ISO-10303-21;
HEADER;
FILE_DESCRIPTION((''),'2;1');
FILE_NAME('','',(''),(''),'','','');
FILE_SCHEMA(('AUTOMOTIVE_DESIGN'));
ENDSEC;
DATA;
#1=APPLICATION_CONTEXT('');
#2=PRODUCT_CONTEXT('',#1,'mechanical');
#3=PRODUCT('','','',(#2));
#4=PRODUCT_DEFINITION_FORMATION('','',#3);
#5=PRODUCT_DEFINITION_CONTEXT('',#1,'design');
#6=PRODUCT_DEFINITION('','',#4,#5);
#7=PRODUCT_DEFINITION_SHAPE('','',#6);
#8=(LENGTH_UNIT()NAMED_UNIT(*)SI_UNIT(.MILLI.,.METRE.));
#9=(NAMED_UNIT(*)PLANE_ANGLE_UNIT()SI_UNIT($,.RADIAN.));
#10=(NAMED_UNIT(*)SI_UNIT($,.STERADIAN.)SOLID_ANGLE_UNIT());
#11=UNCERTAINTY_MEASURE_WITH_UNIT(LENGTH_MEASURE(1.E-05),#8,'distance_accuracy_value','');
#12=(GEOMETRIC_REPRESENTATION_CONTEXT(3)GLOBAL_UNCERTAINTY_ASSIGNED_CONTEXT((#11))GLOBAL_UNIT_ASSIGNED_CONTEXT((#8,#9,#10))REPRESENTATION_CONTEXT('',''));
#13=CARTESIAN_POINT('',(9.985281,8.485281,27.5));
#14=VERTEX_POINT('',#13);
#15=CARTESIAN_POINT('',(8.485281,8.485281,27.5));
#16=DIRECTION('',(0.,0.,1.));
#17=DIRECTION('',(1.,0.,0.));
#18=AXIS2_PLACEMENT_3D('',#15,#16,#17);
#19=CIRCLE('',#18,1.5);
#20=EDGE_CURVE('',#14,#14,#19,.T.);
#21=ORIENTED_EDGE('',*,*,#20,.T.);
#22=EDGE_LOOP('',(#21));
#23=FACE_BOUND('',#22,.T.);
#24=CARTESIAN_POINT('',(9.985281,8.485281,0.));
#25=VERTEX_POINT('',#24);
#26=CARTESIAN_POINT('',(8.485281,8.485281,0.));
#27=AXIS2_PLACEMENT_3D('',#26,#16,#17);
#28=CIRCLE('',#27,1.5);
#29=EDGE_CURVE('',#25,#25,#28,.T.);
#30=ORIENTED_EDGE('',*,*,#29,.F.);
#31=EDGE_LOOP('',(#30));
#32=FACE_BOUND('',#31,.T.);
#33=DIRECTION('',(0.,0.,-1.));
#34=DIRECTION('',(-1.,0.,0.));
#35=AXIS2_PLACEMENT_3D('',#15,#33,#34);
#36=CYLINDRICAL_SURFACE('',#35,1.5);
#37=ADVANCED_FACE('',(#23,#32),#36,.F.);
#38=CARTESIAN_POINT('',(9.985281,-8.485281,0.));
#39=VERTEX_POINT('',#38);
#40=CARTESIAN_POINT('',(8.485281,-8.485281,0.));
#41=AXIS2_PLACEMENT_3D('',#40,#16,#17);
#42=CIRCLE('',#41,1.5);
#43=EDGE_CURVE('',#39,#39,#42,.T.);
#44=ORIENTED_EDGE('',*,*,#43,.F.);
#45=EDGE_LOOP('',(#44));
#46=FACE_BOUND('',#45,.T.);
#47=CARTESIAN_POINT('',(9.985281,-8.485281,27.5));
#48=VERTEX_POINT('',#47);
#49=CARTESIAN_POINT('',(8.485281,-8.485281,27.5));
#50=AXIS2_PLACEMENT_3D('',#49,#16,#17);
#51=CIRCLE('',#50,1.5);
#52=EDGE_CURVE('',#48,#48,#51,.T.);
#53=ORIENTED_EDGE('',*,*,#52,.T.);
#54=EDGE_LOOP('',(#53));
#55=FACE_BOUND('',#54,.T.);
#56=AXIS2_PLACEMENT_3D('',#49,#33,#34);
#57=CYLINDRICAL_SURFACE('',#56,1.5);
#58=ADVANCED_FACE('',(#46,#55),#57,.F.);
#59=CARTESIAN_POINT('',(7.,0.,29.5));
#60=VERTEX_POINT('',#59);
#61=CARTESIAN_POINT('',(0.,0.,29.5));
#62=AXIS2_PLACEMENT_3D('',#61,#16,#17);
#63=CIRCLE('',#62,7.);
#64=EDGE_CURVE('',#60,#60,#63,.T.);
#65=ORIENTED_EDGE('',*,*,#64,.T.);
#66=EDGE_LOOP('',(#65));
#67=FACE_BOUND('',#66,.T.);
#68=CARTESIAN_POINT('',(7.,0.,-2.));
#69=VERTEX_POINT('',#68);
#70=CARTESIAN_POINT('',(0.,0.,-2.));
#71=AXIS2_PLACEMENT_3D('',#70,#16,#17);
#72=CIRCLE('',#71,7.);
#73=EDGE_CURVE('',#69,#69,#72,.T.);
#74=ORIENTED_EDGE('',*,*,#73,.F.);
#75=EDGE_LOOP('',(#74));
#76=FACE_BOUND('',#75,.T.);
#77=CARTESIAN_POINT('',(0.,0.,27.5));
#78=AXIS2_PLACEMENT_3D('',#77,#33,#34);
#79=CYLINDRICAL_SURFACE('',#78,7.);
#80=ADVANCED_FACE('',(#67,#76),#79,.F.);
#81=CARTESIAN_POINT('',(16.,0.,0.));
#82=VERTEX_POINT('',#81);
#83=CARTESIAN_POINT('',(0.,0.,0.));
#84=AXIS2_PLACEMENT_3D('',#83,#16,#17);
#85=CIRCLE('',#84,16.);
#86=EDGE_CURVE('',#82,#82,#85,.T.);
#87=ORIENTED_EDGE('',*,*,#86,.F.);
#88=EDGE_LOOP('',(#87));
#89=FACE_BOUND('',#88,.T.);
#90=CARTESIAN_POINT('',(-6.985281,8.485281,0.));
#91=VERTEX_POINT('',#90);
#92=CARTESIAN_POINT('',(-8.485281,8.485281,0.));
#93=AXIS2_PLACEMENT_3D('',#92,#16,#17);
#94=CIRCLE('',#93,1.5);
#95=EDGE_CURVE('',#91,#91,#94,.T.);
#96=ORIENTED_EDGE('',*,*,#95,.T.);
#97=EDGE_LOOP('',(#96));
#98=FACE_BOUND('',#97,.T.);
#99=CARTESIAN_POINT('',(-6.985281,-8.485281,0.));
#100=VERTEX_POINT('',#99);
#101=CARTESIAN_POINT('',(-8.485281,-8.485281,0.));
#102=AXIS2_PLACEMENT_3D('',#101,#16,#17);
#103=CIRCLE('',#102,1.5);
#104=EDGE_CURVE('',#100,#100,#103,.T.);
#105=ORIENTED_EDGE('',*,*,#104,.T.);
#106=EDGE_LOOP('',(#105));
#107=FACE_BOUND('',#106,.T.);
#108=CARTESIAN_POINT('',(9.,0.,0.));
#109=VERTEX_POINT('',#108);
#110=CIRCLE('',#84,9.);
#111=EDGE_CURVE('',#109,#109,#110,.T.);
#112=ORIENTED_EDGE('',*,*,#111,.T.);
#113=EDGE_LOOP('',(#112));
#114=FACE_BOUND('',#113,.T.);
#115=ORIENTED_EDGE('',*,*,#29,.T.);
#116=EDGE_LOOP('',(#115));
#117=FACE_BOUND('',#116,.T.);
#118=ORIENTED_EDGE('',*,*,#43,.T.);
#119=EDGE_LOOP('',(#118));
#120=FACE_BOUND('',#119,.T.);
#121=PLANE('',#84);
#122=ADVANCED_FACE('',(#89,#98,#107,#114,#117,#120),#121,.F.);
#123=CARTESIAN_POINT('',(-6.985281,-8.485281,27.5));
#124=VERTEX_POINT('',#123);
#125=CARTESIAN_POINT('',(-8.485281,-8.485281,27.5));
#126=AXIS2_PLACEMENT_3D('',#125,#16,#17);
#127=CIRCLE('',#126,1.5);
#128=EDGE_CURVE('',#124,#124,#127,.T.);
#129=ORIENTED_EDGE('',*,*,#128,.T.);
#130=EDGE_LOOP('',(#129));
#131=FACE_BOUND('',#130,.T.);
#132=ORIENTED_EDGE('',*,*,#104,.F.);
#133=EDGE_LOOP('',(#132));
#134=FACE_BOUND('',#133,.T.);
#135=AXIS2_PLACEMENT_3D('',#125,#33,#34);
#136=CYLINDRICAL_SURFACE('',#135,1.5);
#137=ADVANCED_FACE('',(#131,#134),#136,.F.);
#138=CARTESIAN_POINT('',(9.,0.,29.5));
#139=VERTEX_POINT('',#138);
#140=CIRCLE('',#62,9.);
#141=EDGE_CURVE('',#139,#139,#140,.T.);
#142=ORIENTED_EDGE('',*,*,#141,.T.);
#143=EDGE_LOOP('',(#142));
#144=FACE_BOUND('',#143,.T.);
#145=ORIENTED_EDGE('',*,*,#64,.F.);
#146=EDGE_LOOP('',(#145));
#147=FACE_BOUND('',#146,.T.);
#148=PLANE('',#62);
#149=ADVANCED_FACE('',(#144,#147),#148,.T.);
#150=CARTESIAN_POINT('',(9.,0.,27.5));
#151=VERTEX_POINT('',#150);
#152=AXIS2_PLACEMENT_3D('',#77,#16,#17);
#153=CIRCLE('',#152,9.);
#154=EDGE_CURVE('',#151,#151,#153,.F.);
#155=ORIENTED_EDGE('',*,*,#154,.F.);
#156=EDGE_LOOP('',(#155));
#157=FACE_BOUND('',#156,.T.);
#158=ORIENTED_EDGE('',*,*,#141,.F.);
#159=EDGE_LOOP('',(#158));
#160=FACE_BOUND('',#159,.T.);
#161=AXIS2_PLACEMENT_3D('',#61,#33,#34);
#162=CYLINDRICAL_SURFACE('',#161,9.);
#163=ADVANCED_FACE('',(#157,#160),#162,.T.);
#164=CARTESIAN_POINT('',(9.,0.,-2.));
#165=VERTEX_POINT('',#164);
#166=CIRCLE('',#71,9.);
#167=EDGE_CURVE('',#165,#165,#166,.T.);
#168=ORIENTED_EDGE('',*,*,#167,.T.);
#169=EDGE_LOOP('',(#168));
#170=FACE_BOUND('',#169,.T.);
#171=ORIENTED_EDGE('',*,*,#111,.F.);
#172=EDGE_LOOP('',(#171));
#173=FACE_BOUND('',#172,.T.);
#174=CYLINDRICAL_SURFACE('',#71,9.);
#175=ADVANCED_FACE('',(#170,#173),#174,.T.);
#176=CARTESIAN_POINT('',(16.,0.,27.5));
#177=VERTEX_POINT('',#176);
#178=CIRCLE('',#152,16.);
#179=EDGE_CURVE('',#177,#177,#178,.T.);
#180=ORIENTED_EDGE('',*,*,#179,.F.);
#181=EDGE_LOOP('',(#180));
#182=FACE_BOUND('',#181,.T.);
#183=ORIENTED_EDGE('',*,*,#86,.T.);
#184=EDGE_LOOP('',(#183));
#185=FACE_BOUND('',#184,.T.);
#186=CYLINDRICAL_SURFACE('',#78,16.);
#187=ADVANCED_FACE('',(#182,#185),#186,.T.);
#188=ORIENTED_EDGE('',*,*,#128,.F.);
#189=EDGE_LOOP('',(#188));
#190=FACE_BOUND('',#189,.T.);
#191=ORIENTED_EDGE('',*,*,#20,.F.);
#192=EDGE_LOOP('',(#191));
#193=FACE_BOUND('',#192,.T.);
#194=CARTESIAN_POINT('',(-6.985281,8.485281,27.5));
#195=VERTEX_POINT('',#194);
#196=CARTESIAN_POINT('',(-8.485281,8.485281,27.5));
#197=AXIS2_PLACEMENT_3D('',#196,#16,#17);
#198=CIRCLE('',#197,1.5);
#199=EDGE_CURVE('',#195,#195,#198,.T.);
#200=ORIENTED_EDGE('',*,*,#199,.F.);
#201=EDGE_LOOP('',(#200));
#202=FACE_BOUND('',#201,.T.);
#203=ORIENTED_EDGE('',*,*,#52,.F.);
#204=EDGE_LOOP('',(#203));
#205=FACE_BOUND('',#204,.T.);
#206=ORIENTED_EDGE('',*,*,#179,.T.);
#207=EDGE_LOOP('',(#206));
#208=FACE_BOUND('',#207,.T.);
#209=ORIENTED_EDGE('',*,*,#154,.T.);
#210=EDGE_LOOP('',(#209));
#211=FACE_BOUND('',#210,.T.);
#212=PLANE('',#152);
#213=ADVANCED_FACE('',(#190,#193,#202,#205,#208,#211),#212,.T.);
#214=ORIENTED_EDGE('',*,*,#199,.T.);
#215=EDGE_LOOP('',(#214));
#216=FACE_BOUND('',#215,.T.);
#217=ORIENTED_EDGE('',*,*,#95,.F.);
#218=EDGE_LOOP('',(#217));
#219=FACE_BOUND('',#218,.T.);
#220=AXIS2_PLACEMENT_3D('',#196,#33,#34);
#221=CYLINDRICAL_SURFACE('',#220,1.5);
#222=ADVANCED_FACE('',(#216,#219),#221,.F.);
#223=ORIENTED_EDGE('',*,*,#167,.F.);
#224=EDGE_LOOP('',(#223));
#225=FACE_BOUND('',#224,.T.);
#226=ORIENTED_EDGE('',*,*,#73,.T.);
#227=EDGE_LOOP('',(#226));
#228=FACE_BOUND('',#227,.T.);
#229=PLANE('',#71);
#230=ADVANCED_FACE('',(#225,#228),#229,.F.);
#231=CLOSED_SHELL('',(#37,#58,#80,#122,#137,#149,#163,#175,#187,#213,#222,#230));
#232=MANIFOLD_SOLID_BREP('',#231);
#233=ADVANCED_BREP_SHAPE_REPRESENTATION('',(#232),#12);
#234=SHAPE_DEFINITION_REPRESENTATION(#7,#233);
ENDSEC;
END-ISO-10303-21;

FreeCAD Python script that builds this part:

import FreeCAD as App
import Part
import Sketcher

V = App.Vector
Q = App.Units.Quantity

doc = App.newDocument("Part")
body = doc.addObject("PartDesign::Body", "Body")

# Sketch on XY plane
sketch1 = body.newObject("Sketcher::SketchObject", "Sketch")
sketch1.AttachmentSupport = (doc.getObject("XY_Plane"), [""])
sketch1.MapMode = "FlatFace"
sketch1.addGeometry([
    Part.Circle(V(0, 0, 0), V(0, 0, 1), 16),  # 0
    Part.Circle(V(-8.485281, -8.485281, 0), V(0, 0, 1), 1.5),  # 1
    Part.Circle(V(8.485281, -8.485281, 0), V(0, 0, 1), 1.5),  # 2
    Part.Circle(V(-8.485281, 8.485281, 0), V(0, 0, 1), 1.5),  # 3
    Part.Circle(V(0, 0, 0), V(0, 0, 1), 7),  # 4
    Part.Circle(V(8.485281, 8.485281, 0), V(0, 0, 1), 1.5),  # 5
], False)
sketch1.addConstraint([
    Sketcher.Constraint("Coincident", 0, 3, -1, 1),
    Sketcher.Constraint("Coincident", 4, 3, -1, 1),
    Sketcher.Constraint("Equal", 1, 2),
    Sketcher.Constraint("Equal", 2, 3),
    Sketcher.Constraint("Equal", 3, 5),
    Sketcher.Constraint("Symmetric", 2, 3, 3, 3, -1, 1),
    Sketcher.Constraint("Symmetric", 1, 3, 5, 3, -1, 1),
    Sketcher.Constraint("Symmetric", 1, 3, 2, 3, -2),
    Sketcher.Constraint("Diameter", 0, Q("32 mm")),
    Sketcher.Constraint("Diameter", 1, Q("3 mm")),
    Sketcher.Constraint("Diameter", 4, Q("14 mm")),
    Sketcher.Constraint("DistanceX", 1, 3, -1, 1, Q("8.485281 mm")),
    Sketcher.Constraint("DistanceY", 1, 3, -1, 1, Q("8.485281 mm")),
])
pad1 = body.newObject("PartDesign::Pad", "Pad")
pad1.Profile = sketch1
pad1.Length = 27.5

# Sketch on XY plane
sketch2 = body.newObject("Sketcher::SketchObject", "Sketch001")
sketch2.AttachmentSupport = (doc.getObject("XY_Plane"), [""])
sketch2.MapMode = "FlatFace"
sketch2.addGeometry([
    Part.Circle(V(0, 0, 0), V(0, 0, 1), 9),
    Part.Circle(V(0, 0, 0), V(0, 0, 1), 7),
], False)
sketch2.addConstraint([
    Sketcher.Constraint("Coincident", 0, 3, -1, 1),
    Sketcher.Constraint("Coincident", 1, 3, -1, 1),
    Sketcher.Constraint("Diameter", 0, Q("18 mm")),
    Sketcher.Constraint("Diameter", 1, Q("14 mm")),
])
pad2 = body.newObject("PartDesign::Pad", "Pad001")
pad2.Profile = sketch2
pad2.Length = 29.5

# Sketch on XY plane
sketch3 = body.newObject("Sketcher::SketchObject", "Sketch002")
sketch3.AttachmentSupport = (doc.getObject("XY_Plane"), [""])
sketch3.MapMode = "FlatFace"
sketch3.addGeometry([
    Part.Circle(V(0, 0, 0), V(0, 0, 1), 9),
    Part.Circle(V(0, 0, 0), V(0, 0, 1), 7),
], False)
sketch3.addConstraint([
    Sketcher.Constraint("Coincident", 0, 3, -1, 1),
    Sketcher.Constraint("Coincident", 1, 3, -1, 1),
    Sketcher.Constraint("Diameter", 0, Q("18 mm")),
    Sketcher.Constraint("Diameter", 1, Q("14 mm")),
])
pad3 = body.newObject("PartDesign::Pad", "Pad002")
pad3.Profile = sketch3
pad3.Length = 2
pad3.Reversed = True

doc.recompute()
